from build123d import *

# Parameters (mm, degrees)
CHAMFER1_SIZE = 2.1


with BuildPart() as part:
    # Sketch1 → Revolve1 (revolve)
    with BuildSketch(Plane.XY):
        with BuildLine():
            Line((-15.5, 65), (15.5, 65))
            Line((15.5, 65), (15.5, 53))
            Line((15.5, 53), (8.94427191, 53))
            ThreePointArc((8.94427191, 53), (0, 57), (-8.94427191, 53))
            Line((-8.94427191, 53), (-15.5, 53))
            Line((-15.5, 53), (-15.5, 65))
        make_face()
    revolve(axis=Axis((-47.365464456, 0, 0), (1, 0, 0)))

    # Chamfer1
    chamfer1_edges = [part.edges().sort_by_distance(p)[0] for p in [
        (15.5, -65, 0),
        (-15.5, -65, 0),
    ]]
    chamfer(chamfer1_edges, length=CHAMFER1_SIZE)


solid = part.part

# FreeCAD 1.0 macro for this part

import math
import FreeCAD as App
import Part
import Sketcher

V = App.Vector


def edges_at(feature, points):
    """Names of the edges that pass closest to the given points."""
    edges = feature.Shape.Edges
    near = lambda p: min(range(len(edges)), key=lambda i: edges[i].distToShape(Part.Vertex(*p))[0])
    return sorted({f"Edge{near(p) + 1}" for p in points})

doc = App.newDocument("Part")
params = doc.addObject("Spreadsheet::Sheet", "Params")
for row, (alias, value) in enumerate([
    ("sketch1_radius", "12 mm"),
    ("sketch1_width", "31 mm"),
    ("sketch1_height", "12 mm"),
    ("revolution_angle", "360 deg"),
    ("chamfer_size", "2.1 mm"),
], start=1):
    params.set(f"A{row}", alias)
    params.set(f"B{row}", "=" + value)
    params.setAlias(f"B{row}", alias)

body = doc.addObject("PartDesign::Body", "Body")

sketch1 = body.newObject("Sketcher::SketchObject", "Sketch")
sketch1.AttachmentSupport = (doc.getObject("XY_Plane"), [""])
sketch1.MapMode = "FlatFace"
sketch1.addGeometry([
    Part.LineSegment(V(16, 65, 0), V(-16, 65, 0)),
    Part.LineSegment(V(-16, 65, 0), V(-16, 53, 0)),
    Part.LineSegment(V(-16, 53, 0), V(-9, 53, 0)),
    Part.ArcOfCircle(Part.Circle(V(0, 45, 0), V(0, 0, 1), 12), math.radians(42), math.radians(138)),
    Part.LineSegment(V(9, 53, 0), V(16, 53, 0)),
    Part.LineSegment(V(16, 53, 0), V(16, 65, 0)),
], False)
sketch1.addConstraint([
    Sketcher.Constraint("Coincident", 0, 2, 1, 1),
    Sketcher.Constraint("Coincident", 1, 2, 2, 1),
    Sketcher.Constraint("Coincident", 2, 2, 3, 2),
    Sketcher.Constraint("Coincident", 3, 1, 4, 1),
    Sketcher.Constraint("Coincident", 4, 2, 5, 1),
    Sketcher.Constraint("Coincident", 5, 2, 0, 1),
    Sketcher.Constraint("Horizontal", 0),
    Sketcher.Constraint("Vertical", 1),
    Sketcher.Constraint("Horizontal", 2),
    Sketcher.Constraint("Horizontal", 4),
    Sketcher.Constraint("Vertical", 5),
    Sketcher.Constraint("Symmetric", 2, 2, 3, 1, -2),
    Sketcher.Constraint("Equal", 2, 4),
    Sketcher.Constraint("Radius", 3, 12.0),
    Sketcher.Constraint("DistanceX", 0, 2, 0, 1, 31.0),
    Sketcher.Constraint("DistanceY", 1, 2, 1, 1, 12.0),
    Sketcher.Constraint("DistanceY", -1, 1, 3, 3, 45.0),
    Sketcher.Constraint("DistanceY", -1, 1, 0, 2, 65.0),
])
sketch1.setExpression("Constraints[13]", "Params.sketch1_radius")
sketch1.setExpression("Constraints[14]", "Params.sketch1_width")
sketch1.setExpression("Constraints[15]", "Params.sketch1_height")
revolution = body.newObject("PartDesign::Revolution", "Revolution")
revolution.Profile = sketch1
revolution.ReferenceAxis = (sketch1, ["H_Axis"])
revolution.setExpression("Angle", "Params.revolution_angle")
doc.recompute()

chamfer = body.newObject("PartDesign::Chamfer", "Chamfer")
chamfer.Base = (revolution, edges_at(revolution, [(15.5, -65, 0), (-15.5, -65, 0)]))
chamfer.setExpression("Size", "Params.chamfer_size")

doc.recompute()
